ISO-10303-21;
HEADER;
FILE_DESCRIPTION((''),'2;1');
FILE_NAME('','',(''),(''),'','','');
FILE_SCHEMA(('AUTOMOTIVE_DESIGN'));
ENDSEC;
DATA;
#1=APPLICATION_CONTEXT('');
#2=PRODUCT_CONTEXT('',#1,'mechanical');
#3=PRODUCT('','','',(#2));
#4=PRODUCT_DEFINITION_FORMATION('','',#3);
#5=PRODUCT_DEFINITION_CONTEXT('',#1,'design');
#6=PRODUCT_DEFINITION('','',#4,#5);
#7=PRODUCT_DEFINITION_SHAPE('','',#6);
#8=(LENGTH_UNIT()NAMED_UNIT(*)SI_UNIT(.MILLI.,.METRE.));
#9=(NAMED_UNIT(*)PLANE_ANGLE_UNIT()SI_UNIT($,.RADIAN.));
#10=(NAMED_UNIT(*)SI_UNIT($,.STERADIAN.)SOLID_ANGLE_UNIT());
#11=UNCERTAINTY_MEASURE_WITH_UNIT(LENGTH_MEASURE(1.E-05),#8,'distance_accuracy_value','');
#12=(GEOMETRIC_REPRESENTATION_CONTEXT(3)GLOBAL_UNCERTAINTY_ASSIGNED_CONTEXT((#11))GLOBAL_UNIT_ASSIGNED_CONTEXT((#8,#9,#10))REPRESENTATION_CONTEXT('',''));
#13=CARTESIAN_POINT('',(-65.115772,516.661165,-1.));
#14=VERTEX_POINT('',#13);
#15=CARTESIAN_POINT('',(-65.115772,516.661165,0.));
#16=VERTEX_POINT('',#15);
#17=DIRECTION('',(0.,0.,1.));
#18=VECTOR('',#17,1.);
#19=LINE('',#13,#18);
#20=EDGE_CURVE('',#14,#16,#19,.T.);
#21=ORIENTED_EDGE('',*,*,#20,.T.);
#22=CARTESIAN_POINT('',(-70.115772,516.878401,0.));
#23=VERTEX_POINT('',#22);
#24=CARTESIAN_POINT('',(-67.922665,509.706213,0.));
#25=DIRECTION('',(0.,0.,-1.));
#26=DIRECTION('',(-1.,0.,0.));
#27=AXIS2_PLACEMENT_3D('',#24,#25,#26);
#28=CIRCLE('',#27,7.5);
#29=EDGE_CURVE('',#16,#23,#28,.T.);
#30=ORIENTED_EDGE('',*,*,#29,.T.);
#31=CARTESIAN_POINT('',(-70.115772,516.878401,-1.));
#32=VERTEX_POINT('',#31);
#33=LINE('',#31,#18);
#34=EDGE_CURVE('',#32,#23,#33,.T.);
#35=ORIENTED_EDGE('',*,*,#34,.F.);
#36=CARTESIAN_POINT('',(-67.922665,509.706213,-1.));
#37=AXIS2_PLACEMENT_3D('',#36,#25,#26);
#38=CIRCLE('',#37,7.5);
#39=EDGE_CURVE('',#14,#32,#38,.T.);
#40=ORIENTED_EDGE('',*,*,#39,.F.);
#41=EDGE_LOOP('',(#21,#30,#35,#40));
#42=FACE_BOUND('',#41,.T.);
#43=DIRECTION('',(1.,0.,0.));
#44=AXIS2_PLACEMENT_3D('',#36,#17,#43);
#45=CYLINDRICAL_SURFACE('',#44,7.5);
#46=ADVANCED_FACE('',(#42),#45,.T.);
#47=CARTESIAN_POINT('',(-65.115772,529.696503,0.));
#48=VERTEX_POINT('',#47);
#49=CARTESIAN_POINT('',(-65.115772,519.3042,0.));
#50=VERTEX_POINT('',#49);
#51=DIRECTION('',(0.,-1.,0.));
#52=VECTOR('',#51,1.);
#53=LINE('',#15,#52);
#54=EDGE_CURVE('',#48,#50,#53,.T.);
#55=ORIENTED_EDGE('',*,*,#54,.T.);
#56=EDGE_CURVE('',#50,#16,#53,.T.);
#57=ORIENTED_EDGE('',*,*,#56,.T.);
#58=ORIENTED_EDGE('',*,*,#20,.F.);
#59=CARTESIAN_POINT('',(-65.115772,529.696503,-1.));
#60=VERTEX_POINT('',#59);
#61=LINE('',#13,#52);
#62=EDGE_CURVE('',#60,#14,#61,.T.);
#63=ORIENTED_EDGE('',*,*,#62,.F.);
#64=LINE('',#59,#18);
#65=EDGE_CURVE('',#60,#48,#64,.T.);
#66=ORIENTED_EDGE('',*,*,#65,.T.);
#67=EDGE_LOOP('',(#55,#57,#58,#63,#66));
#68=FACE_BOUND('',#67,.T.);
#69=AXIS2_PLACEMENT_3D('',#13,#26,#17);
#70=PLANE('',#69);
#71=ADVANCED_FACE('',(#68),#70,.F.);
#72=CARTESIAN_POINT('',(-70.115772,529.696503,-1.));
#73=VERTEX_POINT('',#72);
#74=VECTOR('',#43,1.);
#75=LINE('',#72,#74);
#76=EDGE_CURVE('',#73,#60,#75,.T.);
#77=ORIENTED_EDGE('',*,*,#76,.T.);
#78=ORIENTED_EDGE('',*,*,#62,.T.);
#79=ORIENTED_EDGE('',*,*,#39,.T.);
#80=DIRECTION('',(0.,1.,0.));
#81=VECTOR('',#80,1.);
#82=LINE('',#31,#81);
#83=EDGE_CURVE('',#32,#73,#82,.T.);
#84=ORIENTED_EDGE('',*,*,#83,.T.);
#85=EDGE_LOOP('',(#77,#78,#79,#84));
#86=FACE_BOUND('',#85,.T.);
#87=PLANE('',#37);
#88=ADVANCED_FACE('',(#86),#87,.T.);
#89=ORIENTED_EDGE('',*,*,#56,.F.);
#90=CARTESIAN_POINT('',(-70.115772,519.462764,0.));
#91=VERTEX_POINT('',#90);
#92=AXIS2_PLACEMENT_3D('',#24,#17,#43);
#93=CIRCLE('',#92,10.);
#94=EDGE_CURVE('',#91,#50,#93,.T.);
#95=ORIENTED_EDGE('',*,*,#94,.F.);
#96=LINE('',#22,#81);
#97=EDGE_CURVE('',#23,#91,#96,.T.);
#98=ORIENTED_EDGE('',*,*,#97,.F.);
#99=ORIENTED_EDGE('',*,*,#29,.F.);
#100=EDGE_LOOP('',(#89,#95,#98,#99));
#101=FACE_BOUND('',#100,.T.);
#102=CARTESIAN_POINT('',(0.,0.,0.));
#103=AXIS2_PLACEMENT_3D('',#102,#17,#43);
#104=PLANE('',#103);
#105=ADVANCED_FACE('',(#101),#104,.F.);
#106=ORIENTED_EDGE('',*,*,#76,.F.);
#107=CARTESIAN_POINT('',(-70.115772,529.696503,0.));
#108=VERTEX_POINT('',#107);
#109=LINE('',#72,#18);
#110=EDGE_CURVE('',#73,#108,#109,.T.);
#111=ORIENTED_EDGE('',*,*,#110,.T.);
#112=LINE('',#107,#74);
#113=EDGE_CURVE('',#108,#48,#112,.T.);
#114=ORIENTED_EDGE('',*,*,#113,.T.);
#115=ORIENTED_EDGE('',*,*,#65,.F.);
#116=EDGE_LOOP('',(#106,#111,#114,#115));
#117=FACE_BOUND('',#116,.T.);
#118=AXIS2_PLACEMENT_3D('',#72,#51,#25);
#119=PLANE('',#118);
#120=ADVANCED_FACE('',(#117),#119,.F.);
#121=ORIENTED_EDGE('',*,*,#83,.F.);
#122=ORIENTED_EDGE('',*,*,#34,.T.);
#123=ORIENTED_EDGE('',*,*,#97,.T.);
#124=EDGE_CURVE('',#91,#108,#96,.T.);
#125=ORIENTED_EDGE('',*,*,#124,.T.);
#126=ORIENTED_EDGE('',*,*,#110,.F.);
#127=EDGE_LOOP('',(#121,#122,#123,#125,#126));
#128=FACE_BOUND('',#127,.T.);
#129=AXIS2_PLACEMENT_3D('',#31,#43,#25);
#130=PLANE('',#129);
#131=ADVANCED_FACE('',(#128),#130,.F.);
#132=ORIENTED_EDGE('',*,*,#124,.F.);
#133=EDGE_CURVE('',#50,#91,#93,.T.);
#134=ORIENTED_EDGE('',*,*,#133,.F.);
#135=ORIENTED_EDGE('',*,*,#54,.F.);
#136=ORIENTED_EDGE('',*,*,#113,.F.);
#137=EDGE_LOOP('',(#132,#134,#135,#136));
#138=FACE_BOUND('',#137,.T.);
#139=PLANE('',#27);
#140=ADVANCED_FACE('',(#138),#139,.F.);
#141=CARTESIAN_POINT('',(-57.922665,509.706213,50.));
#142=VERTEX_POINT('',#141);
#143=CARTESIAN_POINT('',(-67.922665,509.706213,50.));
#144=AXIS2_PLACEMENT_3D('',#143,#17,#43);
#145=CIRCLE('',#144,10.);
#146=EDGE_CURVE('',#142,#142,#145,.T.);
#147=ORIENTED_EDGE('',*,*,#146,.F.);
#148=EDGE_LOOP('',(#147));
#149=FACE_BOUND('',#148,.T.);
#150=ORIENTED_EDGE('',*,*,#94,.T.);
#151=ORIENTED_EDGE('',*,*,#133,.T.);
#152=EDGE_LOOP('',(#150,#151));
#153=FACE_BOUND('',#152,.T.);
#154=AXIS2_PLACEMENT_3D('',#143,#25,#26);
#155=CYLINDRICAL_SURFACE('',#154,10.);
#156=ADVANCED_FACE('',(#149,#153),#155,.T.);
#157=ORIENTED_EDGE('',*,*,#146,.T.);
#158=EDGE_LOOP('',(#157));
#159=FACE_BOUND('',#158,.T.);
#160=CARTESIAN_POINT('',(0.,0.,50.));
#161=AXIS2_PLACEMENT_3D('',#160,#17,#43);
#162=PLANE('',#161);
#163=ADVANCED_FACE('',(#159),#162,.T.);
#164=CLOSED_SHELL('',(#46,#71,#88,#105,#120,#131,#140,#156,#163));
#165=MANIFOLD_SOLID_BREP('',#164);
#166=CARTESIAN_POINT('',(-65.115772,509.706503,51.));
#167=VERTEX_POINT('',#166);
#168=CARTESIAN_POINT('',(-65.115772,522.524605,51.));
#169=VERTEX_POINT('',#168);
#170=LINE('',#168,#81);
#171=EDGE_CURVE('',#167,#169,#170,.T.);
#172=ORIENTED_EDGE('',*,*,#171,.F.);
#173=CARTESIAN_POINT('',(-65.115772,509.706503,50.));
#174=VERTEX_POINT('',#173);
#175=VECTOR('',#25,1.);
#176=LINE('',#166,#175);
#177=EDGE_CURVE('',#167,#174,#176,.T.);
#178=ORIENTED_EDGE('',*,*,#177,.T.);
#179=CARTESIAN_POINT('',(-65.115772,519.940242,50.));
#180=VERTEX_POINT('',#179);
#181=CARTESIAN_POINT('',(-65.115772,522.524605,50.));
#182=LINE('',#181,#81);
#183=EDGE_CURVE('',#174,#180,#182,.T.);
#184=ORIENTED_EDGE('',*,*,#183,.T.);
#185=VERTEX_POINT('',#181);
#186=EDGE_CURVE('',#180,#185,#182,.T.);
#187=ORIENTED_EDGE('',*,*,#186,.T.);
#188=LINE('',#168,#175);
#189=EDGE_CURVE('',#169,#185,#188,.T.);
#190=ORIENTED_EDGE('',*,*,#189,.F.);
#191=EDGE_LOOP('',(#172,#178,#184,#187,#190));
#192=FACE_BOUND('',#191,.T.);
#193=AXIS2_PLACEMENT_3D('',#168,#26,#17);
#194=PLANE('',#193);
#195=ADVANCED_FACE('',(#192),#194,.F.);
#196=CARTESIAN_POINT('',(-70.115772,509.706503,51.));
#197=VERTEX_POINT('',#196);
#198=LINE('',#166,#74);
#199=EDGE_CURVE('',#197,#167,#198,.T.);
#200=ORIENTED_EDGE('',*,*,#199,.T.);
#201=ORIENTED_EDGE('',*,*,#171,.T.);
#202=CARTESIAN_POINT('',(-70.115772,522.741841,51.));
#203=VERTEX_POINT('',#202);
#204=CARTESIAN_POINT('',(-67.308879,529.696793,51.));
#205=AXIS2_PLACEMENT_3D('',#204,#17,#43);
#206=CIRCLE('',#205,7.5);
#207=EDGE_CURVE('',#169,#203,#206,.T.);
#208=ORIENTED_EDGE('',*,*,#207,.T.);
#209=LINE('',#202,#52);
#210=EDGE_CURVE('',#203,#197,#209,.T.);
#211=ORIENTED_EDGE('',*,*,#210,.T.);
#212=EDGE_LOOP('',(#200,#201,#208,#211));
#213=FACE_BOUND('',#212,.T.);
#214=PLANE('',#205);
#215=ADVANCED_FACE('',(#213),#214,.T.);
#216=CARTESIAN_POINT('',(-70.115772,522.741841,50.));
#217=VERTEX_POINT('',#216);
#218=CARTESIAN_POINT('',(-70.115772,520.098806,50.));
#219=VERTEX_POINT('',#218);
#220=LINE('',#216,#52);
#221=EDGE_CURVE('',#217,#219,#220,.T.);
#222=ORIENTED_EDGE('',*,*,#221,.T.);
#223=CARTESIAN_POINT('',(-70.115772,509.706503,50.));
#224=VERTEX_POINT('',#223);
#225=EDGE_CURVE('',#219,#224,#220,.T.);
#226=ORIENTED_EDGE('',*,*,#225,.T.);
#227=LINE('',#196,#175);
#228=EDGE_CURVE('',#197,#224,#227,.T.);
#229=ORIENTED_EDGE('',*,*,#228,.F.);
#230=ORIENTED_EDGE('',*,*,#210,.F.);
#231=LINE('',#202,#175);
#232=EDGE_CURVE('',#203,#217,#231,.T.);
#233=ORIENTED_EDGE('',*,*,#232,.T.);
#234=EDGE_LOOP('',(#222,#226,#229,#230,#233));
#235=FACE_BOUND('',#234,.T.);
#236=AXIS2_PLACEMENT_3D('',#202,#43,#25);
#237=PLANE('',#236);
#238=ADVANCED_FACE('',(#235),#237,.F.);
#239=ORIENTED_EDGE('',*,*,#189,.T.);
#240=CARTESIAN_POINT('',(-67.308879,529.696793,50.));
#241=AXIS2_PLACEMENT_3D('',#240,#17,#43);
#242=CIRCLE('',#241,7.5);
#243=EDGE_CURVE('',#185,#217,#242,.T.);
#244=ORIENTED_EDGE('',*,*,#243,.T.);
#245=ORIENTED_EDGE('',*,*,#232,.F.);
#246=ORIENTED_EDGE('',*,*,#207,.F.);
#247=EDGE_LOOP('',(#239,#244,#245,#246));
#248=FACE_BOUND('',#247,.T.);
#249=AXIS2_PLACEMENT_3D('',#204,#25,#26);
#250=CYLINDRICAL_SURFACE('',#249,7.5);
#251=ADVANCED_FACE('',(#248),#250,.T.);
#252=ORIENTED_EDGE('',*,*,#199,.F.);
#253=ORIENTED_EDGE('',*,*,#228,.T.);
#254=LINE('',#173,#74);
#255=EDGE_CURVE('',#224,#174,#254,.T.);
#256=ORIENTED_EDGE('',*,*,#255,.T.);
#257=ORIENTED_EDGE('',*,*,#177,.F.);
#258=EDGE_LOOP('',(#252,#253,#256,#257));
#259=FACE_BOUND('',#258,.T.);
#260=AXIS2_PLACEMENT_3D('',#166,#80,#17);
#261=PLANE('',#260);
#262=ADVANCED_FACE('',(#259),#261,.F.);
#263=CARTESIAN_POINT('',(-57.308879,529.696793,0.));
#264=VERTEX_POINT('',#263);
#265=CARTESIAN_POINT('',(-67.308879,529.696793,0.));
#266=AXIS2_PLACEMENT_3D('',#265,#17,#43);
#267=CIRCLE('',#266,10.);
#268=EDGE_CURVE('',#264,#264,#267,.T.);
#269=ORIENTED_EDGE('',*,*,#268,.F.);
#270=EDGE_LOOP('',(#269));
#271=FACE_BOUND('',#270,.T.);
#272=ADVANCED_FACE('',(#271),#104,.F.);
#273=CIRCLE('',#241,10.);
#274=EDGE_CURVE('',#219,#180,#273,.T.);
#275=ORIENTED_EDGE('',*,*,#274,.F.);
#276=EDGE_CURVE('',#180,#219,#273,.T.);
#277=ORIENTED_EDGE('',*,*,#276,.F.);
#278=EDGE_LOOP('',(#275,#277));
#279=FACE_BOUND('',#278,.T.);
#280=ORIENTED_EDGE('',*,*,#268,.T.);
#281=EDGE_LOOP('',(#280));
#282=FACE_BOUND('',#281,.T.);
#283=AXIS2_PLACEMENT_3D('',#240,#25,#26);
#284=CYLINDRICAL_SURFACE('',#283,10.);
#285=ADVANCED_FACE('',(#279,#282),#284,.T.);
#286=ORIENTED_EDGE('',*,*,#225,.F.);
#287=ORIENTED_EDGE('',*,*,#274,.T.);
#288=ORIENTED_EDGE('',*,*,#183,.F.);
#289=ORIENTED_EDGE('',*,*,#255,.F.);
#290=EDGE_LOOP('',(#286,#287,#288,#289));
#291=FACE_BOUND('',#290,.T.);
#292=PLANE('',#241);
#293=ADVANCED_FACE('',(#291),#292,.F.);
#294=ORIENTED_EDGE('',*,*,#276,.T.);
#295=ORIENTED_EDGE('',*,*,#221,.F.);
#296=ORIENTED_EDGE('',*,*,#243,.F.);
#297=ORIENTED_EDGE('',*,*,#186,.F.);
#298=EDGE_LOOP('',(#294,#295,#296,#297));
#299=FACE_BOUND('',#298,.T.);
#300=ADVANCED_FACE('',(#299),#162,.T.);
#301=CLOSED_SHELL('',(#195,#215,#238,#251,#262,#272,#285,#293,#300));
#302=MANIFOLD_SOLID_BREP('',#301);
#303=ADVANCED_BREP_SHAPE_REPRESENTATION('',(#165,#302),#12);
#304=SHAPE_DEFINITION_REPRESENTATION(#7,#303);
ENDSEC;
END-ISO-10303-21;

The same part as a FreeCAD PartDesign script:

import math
import FreeCAD as App
import Part
import Sketcher

V = App.Vector

doc = App.newDocument("Part")
body = doc.addObject("PartDesign::Body", "Body")

sketch1 = doc.addObject("Sketcher::SketchObject", "Sketch")
body.addObject(sketch1)
sketch1.AttachmentSupport = (doc.XY_Plane, [""])
sketch1.MapMode = "FlatFace"
sketch1.addGeometry(Part.Circle(V(-67, 530, 0), V(0, 0, 1), 10), False)
sketch1.addConstraint(Sketcher.Constraint("Diameter", 0, 20.0))
sketch1.addConstraint(Sketcher.Constraint("DistanceX", 0, 3, -1, 1, 67.308879))
sketch1.addConstraint(Sketcher.Constraint("DistanceY", -1, 1, 0, 3, 529.696793))
pad1 = doc.addObject("PartDesign::Pad", "Pad")
body.addObject(pad1)
pad1.Profile = sketch1
pad1.Length = 50

sketch2 = doc.addObject("Sketcher::SketchObject", "Sketch001")
body.addObject(sketch2)
sketch2.AttachmentSupport = (doc.XY_Plane, [""])
sketch2.MapMode = "FlatFace"
sketch2.AttachmentOffset = App.Placement(V(0, 0, 50), App.Rotation())
sketch2.addGeometry(Part.LineSegment(V(-65, 510, 0), V(-65, 523, 0)), False)
sketch2.addGeometry(Part.ArcOfCircle(Part.Circle(V(-67, 530, 0), V(0, 0, 1), 8), math.radians(-73), math.radians(248)), False)
sketch2.addGeometry(Part.LineSegment(V(-70, 523, 0), V(-70, 510, 0)), False)
sketch2.addGeometry(Part.LineSegment(V(-70, 510, 0), V(-65, 510, 0)), False)
sketch2.addConstraint(Sketcher.Constraint("Coincident", 0, 2, 1, 1))
sketch2.addConstraint(Sketcher.Constraint("Coincident", 1, 2, 2, 1))
sketch2.addConstraint(Sketcher.Constraint("Coincident", 2, 2, 3, 1))
sketch2.addConstraint(Sketcher.Constraint("Coincident", 3, 2, 0, 1))
sketch2.addConstraint(Sketcher.Constraint("Vertical", 0))
sketch2.addConstraint(Sketcher.Constraint("Vertical", 2))
sketch2.addConstraint(Sketcher.Constraint("Horizontal", 3))
sketch2.addConstraint(Sketcher.Constraint("Radius", 1, 7.5))
sketch2.addConstraint(Sketcher.Constraint("DistanceX", 3, 1, 3, 2, 5.0))
sketch2.addConstraint(Sketcher.Constraint("DistanceY", 0, 1, 0, 2, 12.818102))
sketch2.addConstraint(Sketcher.Constraint("DistanceY", 2, 2, 2, 1, 13.035338))
sketch2.addConstraint(Sketcher.Constraint("DistanceX", 1, 3, -1, 1, 67.308879))
sketch2.addConstraint(Sketcher.Constraint("DistanceY", -1, 1, 1, 2, 522.741841))
pad2 = doc.addObject("PartDesign::Pad", "Pad001")
body.addObject(pad2)
pad2.Profile = sketch2
pad2.Length = 1
body2 = doc.addObject("PartDesign::Body", "Body001")

sketch3 = doc.addObject("Sketcher::SketchObject", "Sketch002")
body2.addObject(sketch3)
sketch3.AttachmentSupport = (doc.getObject("XY_Plane001"), [""])
sketch3.MapMode = "FlatFace"
sketch3.addGeometry(Part.Circle(V(-68, 510, 0), V(0, 0, 1), 10), False)
sketch3.addConstraint(Sketcher.Constraint("Diameter", 0, 20.0))
sketch3.addConstraint(Sketcher.Constraint("DistanceX", 0, 3, -1, 1, 67.922665))
sketch3.addConstraint(Sketcher.Constraint("DistanceY", -1, 1, 0, 3, 509.706213))
pad3 = doc.addObject("PartDesign::Pad", "Pad002")
body2.addObject(pad3)
pad3.Profile = sketch3
pad3.Length = 50

sketch4 = doc.addObject("Sketcher::SketchObject", "Sketch003")
body2.addObject(sketch4)
sketch4.AttachmentSupport = (doc.getObject("XY_Plane001"), [""])
sketch4.MapMode = "FlatFace"
sketch4.addGeometry(Part.LineSegment(V(-70, 517, 0), V(-70, 530, 0)), False)
sketch4.addGeometry(Part.LineSegment(V(-70, 530, 0), V(-65, 530, 0)), False)
sketch4.addGeometry(Part.LineSegment(V(-65, 530, 0), V(-65, 517, 0)), False)
sketch4.addGeometry(Part.ArcOfCircle(Part.Circle(V(-68, 510, 0), V(0, 0, 1), 8), math.radians(107), math.radians(428)), False)
sketch4.addConstraint(Sketcher.Constraint("Coincident", 0, 2, 1, 1))
sketch4.addConstraint(Sketcher.Constraint("Coincident", 1, 2, 2, 1))
sketch4.addConstraint(Sketcher.Constraint("Coincident", 2, 2, 3, 2))
sketch4.addConstraint(Sketcher.Constraint("Coincident", 3, 1, 0, 1))
sketch4.addConstraint(Sketcher.Constraint("Vertical", 0))
sketch4.addConstraint(Sketcher.Constraint("Horizontal", 1))
sketch4.addConstraint(Sketcher.Constraint("Vertical", 2))
sketch4.addConstraint(Sketcher.Constraint("Radius", 3, 7.5))
sketch4.addConstraint(Sketcher.Constraint("DistanceX", 1, 1, 1, 2, 5.0))
sketch4.addConstraint(Sketcher.Constraint("DistanceY", 0, 1, 0, 2, 12.818102))
sketch4.addConstraint(Sketcher.Constraint("DistanceY", 2, 2, 2, 1, 13.035338))
sketch4.addConstraint(Sketcher.Constraint("DistanceY", -1, 1, 3, 1, 516.878401))
sketch4.addConstraint(Sketcher.Constraint("DistanceX", 0, 2, -1, 1, 70.115772))
pad4 = doc.addObject("PartDesign::Pad", "Pad003")
body2.addObject(pad4)
pad4.Profile = sketch4
pad4.Length = 1
pad4.Reversed = True

doc.recompute()
